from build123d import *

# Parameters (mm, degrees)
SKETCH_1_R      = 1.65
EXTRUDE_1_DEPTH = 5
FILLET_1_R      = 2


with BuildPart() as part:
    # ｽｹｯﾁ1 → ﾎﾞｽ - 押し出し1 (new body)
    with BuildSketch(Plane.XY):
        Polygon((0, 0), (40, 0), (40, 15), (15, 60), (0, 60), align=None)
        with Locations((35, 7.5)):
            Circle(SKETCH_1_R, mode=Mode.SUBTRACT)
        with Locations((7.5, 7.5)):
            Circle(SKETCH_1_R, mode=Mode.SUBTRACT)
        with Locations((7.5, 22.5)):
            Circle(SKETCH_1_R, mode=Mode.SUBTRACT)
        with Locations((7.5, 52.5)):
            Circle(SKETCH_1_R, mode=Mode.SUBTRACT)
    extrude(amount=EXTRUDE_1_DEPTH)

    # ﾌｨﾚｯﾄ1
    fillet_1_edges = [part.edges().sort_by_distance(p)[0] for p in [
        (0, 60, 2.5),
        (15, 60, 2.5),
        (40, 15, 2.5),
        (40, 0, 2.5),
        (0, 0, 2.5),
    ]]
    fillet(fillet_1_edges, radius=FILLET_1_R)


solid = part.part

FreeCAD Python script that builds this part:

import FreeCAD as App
import Part
import Sketcher

V = App.Vector
Q = App.Units.Quantity


def edges_at(feature, points):
    """Names of the edges that pass closest to the given points."""
    edges = feature.Shape.Edges
    near = lambda p: min(range(len(edges)), key=lambda i: edges[i].distToShape(Part.Vertex(*p))[0])
    return sorted({f"Edge{near(p) + 1}" for p in points})


def add_polygon(sketch, points):
    """Adds a closed chain of lines whose ends are joined by coincident constraints."""
    first, n = sketch.GeometryCount, len(points)
    for a, b in zip(points, points[1:] + points[:1]):
        sketch.addGeometry(Part.LineSegment(App.Vector(*a, 0), App.Vector(*b, 0)), False)
    for i in range(n):
        sketch.addConstraint(Sketcher.Constraint("Coincident", first + i, 2, first + (i + 1) % n, 1))

doc = App.newDocument("Part")
params = doc.addObject("Spreadsheet::Sheet", "Params")
for row, (alias, value) in enumerate([
    ("sketch1_diameter", "3.3 mm"),
    ("sketch1_width", "40 mm"),
    ("sketch1_width2", "15 mm"),
    ("sketch1_height", "60 mm"),
    ("pad1_length", "5 mm"),
    ("fillet_radius", "2 mm"),
], start=1):
    params.set(f"A{row}", alias)
    params.set(f"B{row}", "=" + value)
    params.setAlias(f"B{row}", alias)

body = doc.addObject("PartDesign::Body", "Body")

# Sketch on XY plane
sketch1 = body.newObject("Sketcher::SketchObject", "Sketch")
sketch1.AttachmentSupport = (doc.getObject("XY_Plane"), [""])
sketch1.MapMode = "FlatFace"
add_polygon(sketch1, [(0, 0), (40, 0), (40, 15), (15, 60), (0, 60)])  # lines 0-4
sketch1.addGeometry(Part.Circle(V(7.5, 7.5, 0), V(0, 0, 1), 1.6), False)  # 5
sketch1.addGeometry(Part.Circle(V(7.5, 22.5, 0), V(0, 0, 1), 1.6), False)  # 6
sketch1.addGeometry(Part.Circle(V(35, 7.5, 0), V(0, 0, 1), 1.6), False)  # 7
sketch1.addGeometry(Part.Circle(V(7.5, 52.5, 0), V(0, 0, 1), 1.6), False)  # 8
sketch1.addConstraint([
    Sketcher.Constraint("Horizontal", 0),
    Sketcher.Constraint("Vertical", 1),
    Sketcher.Constraint("Horizontal", 3),
    Sketcher.Constraint("Vertical", 4),
    Sketcher.Constraint("Coincident", 4, 2, -1, 1),
    Sketcher.Constraint("Equal", 5, 6),
    Sketcher.Constraint("Equal", 6, 7),
    Sketcher.Constraint("Equal", 7, 8),
    Sketcher.Constraint("Horizontal", 5, 3, 7, 3),
    Sketcher.Constraint("Vertical", 5, 3, 6, 3),
    Sketcher.Constraint("Vertical", 6, 3, 8, 3),
    Sketcher.Constraint("Equal", 3, 1),
    Sketcher.Constraint("Diameter", 5, Q("3.3 mm")),
    Sketcher.Constraint("DistanceX", 0, 1, 0, 2, Q("40 mm")),
    Sketcher.Constraint("DistanceX", 3, 2, 3, 1, Q("15 mm")),
    Sketcher.Constraint("DistanceY", 4, 2, 4, 1, Q("60 mm")),
    Sketcher.Constraint("DistanceX", -1, 1, 7, 3, Q("35 mm")),
    Sketcher.Constraint("DistanceY", 5, 3, 6, 3, Q("15 mm")),
    Sketcher.Constraint("DistanceY", 6, 3, 8, 3, Q("30 mm")),
    Sketcher.Constraint("DistanceX", -1, 1, 5, 3, Q("7.5 mm")),
    Sketcher.Constraint("DistanceY", -1, 1, 5, 3, Q("7.5 mm")),
])
sketch1.setExpression("Constraints[17]", "Params.sketch1_diameter")
sketch1.setExpression("Constraints[18]", "Params.sketch1_width")
sketch1.setExpression("Constraints[19]", "Params.sketch1_width2")
sketch1.setExpression("Constraints[20]", "Params.sketch1_height")
pad1 = body.newObject("PartDesign::Pad", "Pad")
pad1.Profile = sketch1
pad1.setExpression("Length", "Params.pad1_length")
doc.recompute()

fillet = body.newObject("PartDesign::Fillet", "Fillet")
fillet.Base = (pad1, edges_at(pad1, [
    (0, 60, 2.5),
    (15, 60, 2.5),
    (40, 15, 2.5),
    (40, 0, 2.5),
    (0, 0, 2.5),
]))
fillet.setExpression("Radius", "Params.fillet_radius")

doc.recompute()
